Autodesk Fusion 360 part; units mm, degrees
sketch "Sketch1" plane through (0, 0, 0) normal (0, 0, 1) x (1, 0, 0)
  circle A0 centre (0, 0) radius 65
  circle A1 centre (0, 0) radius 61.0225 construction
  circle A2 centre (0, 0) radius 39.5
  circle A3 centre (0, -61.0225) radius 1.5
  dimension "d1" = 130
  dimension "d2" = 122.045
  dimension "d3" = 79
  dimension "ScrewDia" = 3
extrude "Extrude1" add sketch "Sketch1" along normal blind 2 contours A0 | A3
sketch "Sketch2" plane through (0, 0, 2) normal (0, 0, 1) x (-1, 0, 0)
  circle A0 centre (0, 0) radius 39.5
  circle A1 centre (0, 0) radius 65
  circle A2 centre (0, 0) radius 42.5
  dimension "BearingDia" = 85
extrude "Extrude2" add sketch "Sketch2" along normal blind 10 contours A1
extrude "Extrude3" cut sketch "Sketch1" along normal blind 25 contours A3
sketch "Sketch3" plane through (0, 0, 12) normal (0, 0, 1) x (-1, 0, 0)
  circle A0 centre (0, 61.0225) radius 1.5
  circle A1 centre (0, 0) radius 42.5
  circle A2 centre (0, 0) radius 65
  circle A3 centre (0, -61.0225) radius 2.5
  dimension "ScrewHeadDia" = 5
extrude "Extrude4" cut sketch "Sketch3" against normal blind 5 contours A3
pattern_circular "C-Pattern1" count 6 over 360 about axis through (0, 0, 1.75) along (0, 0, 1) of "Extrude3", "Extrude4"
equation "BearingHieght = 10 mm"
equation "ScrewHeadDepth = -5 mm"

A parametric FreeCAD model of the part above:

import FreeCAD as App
import Part
import Sketcher
from FreeCAD import Vector

doc = App.newDocument("Part")
body = doc.addObject("PartDesign::Body", "Body")

sketch1 = body.newObject("Sketcher::SketchObject", "Sketch")
sketch1.AttachmentSupport = (doc.getObject("XY_Plane"), [""])
sketch1.MapMode = "FlatFace"
sketch1.addGeometry([
    Part.Circle(Vector(0, 0, 0), Vector(0, 0, 1), 65),
    Part.Circle(Vector(0, 0, 0), Vector(0, 0, 1), 39.5),
], False)
sketch1.addConstraint([
    Sketcher.Constraint("Coincident", 0, 3, -1, 1),
    Sketcher.Constraint("Coincident", 1, 3, -1, 1),
    Sketcher.Constraint("Diameter", 0, 130.0),
    Sketcher.Constraint("Diameter", 1, 79.0),
])
pad1 = body.newObject("PartDesign::Pad", "Pad")
pad1.Profile = sketch1
pad1.Length = 2

sketch2 = body.newObject("Sketcher::SketchObject", "Sketch001")
sketch2.AttachmentSupport = (doc.getObject("XY_Plane"), [""])
sketch2.MapMode = "FlatFace"
sketch2.AttachmentOffset = App.Placement(Vector(0, 0, 2), App.Rotation())
sketch2.addGeometry([
    Part.Circle(Vector(0, 0, 0), Vector(0, 0, 1), 65),
    Part.Circle(Vector(0, 0, 0), Vector(0, 0, 1), 42.5),
], False)
sketch2.addConstraint([
    Sketcher.Constraint("Coincident", 0, 3, -1, 1),
    Sketcher.Constraint("Coincident", 1, 3, -1, 1),
    Sketcher.Constraint("Diameter", 1, 85.0),
    Sketcher.Constraint("Diameter", 0, 130.0),
])
pad2 = body.newObject("PartDesign::Pad", "Pad001")
pad2.Profile = sketch2
pad2.Length = 10

sketch3 = body.newObject("Sketcher::SketchObject", "Sketch002")
sketch3.AttachmentSupport = (doc.getObject("XY_Plane"), [""])
sketch3.MapMode = "FlatFace"
sketch3.addGeometry(Part.Circle(Vector(0, -61.0225, 0), Vector(0, 0, 1), 1.5), False)
sketch3.addConstraint([
    Sketcher.Constraint("PointOnObject", 0, 3, -2),
    Sketcher.Constraint("Diameter", 0, 3.0),
    Sketcher.Constraint("DistanceY", 0, 3, -1, 1, 61.0225),
])
pocket1 = body.newObject("PartDesign::Pocket", "Pocket")
pocket1.Profile = sketch3
pocket1.Length = 25
pocket1.Reversed = True

sketch4 = body.newObject("Sketcher::SketchObject", "Sketch003")
sketch4.AttachmentSupport = (doc.getObject("XY_Plane"), [""])
sketch4.MapMode = "FlatFace"
sketch4.AttachmentOffset = App.Placement(Vector(0, 0, 12), App.Rotation())
sketch4.addGeometry(Part.Circle(Vector(0, 61.0225, 0), Vector(0, 0, 1), 2.5), False)
sketch4.addConstraint([
    Sketcher.Constraint("PointOnObject", 0, 3, -2),
    Sketcher.Constraint("Diameter", 0, 5.0),
    Sketcher.Constraint("DistanceY", -1, 1, 0, 3, 61.0225),
])
pocket2 = body.newObject("PartDesign::Pocket", "Pocket001")
pocket2.Profile = sketch4
pocket2.Length = 5
doc.recompute()

polarpattern = body.newObject("PartDesign::PolarPattern", "PolarPattern")
polarpattern.Originals = [pocket1, pocket2]
polarpattern.Axis = (doc.getObject("Z_Axis"), [""])
polarpattern.Angle = 360
polarpattern.Occurrences = 6
body.Tip = polarpattern

doc.recompute()
